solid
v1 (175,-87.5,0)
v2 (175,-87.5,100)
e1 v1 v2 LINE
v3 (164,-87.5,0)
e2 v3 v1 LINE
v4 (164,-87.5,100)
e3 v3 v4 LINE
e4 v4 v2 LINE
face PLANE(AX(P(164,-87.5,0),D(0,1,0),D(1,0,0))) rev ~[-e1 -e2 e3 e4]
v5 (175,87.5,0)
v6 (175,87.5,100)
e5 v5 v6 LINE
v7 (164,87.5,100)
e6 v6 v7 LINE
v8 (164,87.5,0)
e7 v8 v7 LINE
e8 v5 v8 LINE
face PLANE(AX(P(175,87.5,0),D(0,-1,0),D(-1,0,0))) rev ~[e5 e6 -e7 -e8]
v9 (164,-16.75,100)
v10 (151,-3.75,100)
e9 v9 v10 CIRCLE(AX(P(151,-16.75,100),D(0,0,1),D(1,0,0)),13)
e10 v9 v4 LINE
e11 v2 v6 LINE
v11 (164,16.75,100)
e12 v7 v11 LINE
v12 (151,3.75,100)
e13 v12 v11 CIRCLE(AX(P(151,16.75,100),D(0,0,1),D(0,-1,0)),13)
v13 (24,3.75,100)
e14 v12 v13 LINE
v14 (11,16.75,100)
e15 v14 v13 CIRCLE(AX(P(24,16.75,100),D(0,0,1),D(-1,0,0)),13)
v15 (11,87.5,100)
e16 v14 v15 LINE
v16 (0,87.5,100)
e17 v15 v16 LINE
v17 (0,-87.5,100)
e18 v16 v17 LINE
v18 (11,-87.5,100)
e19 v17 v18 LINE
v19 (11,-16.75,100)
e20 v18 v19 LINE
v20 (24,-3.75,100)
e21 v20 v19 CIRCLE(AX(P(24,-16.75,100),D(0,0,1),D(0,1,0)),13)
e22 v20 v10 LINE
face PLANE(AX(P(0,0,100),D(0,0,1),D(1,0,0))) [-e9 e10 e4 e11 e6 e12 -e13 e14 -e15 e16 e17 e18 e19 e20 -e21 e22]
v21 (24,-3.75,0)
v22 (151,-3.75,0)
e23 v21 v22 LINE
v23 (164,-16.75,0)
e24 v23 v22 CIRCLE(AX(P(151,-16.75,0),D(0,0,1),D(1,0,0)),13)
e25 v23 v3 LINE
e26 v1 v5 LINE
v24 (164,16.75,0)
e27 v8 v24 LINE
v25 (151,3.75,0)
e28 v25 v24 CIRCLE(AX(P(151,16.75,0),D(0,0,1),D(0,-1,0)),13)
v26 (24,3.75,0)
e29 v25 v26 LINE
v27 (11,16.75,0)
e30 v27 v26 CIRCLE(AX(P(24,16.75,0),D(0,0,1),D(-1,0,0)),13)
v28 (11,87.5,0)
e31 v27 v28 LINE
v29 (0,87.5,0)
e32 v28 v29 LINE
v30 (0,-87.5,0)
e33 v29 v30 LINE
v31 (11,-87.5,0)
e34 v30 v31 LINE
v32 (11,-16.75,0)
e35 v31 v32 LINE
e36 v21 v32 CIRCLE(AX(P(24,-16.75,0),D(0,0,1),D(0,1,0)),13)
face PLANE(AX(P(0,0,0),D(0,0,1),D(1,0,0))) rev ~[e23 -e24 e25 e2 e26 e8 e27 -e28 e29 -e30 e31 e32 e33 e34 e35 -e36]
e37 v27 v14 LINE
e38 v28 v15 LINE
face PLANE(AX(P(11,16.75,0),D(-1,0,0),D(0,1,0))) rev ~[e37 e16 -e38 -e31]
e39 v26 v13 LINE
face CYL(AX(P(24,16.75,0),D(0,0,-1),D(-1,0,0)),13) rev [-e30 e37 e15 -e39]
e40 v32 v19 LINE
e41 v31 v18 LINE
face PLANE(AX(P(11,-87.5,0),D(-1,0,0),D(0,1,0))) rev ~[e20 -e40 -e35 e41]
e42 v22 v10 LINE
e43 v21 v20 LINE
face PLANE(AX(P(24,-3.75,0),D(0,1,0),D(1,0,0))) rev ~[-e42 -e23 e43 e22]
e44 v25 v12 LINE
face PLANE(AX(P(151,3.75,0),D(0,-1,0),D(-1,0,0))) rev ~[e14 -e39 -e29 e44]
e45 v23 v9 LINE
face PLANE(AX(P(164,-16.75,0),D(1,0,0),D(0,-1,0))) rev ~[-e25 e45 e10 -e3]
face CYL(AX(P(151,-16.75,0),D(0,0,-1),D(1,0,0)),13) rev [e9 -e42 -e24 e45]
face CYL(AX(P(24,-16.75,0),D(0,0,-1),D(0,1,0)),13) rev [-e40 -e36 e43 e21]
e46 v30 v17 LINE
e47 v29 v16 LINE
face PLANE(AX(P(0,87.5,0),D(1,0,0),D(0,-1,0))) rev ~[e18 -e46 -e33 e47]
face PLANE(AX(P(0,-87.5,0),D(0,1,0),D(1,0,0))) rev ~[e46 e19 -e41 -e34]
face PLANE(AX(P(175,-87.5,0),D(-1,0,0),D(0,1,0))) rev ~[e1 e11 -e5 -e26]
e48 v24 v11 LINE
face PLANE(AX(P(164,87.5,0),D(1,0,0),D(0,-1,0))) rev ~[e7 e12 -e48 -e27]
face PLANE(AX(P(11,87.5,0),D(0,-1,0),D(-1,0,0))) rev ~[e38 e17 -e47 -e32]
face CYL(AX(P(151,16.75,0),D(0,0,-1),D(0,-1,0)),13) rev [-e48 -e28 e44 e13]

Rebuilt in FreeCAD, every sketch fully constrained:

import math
import FreeCAD as App
import Part
import Sketcher

doc = App.newDocument("Part")
body = doc.addObject("PartDesign::Body", "Body")

# Sketch on XY plane
sketch1 = body.newObject("Sketcher::SketchObject", "Sketch")
sketch1.AttachmentSupport = (doc.getObject("XY_Plane"), [""])
sketch1.MapMode = "FlatFace"
sketch1.addGeometry([
    Part.LineSegment(App.Vector(11, 87.5, 0), App.Vector(0, 87.5, 0)),  # 0
    Part.LineSegment(App.Vector(0, 87.5, 0), App.Vector(0, -87.5, 0)),  # 1
    Part.LineSegment(App.Vector(0, -87.5, 0), App.Vector(11, -87.5, 0)),  # 2
    Part.LineSegment(App.Vector(11, -87.5, 0), App.Vector(11, -16.75, 0)),  # 3
    Part.ArcOfCircle(Part.Circle(App.Vector(24, -16.75, 0), App.Vector(0, 0, 1), 13), math.radians(90), math.radians(180)),  # 4
    Part.LineSegment(App.Vector(24, -3.75, 0), App.Vector(151, -3.75, 0)),  # 5
    Part.ArcOfCircle(Part.Circle(App.Vector(151, -16.75, 0), App.Vector(0, 0, 1), 13), math.radians(0), math.radians(90)),  # 6
    Part.LineSegment(App.Vector(164, -16.75, 0), App.Vector(164, -87.5, 0)),  # 7
    Part.LineSegment(App.Vector(164, -87.5, 0), App.Vector(175, -87.5, 0)),  # 8
    Part.LineSegment(App.Vector(175, -87.5, 0), App.Vector(175, 87.5, 0)),  # 9
    Part.LineSegment(App.Vector(175, 87.5, 0), App.Vector(164, 87.5, 0)),  # 10
    Part.LineSegment(App.Vector(164, 87.5, 0), App.Vector(164, 16.75, 0)),  # 11
    Part.ArcOfCircle(Part.Circle(App.Vector(151, 16.75, 0), App.Vector(0, 0, 1), 13), math.radians(-90), math.radians(0)),  # 12
    Part.LineSegment(App.Vector(151, 3.75, 0), App.Vector(24, 3.75, 0)),  # 13
    Part.ArcOfCircle(Part.Circle(App.Vector(24, 16.75, 0), App.Vector(0, 0, 1), 13), math.radians(180), math.radians(270)),  # 14
    Part.LineSegment(App.Vector(11, 16.75, 0), App.Vector(11, 87.5, 0)),  # 15
], False)
sketch1.addConstraint([
    Sketcher.Constraint("Coincident", 0, 2, 1, 1),
    Sketcher.Constraint("Coincident", 1, 2, 2, 1),
    Sketcher.Constraint("Coincident", 2, 2, 3, 1),
    Sketcher.Constraint("Tangent", 3, 2, 4, 2),
    Sketcher.Constraint("Tangent", 4, 1, 5, 1),
    Sketcher.Constraint("Tangent", 5, 2, 6, 2),
    Sketcher.Constraint("Tangent", 6, 1, 7, 1),
    Sketcher.Constraint("Coincident", 7, 2, 8, 1),
    Sketcher.Constraint("Coincident", 8, 2, 9, 1),
    Sketcher.Constraint("Coincident", 9, 2, 10, 1),
    Sketcher.Constraint("Coincident", 10, 2, 11, 1),
    Sketcher.Constraint("Tangent", 11, 2, 12, 2),
    Sketcher.Constraint("Tangent", 12, 1, 13, 1),
    Sketcher.Constraint("Tangent", 13, 2, 14, 2),
    Sketcher.Constraint("Tangent", 14, 1, 15, 1),
    Sketcher.Constraint("Coincident", 15, 2, 0, 1),
    Sketcher.Constraint("Horizontal", 0),
    Sketcher.Constraint("Vertical", 1),
    Sketcher.Constraint("Horizontal", 2),
    Sketcher.Constraint("Vertical", 3),
    Sketcher.Constraint("Horizontal", 5),
    Sketcher.Constraint("Vertical", 7),
    Sketcher.Constraint("Horizontal", 8),
    Sketcher.Constraint("Vertical", 9),
    Sketcher.Constraint("Horizontal", 10),
    Sketcher.Constraint("Vertical", 11),
    Sketcher.Constraint("Horizontal", 13),
    Sketcher.Constraint("Vertical", 15),
    Sketcher.Constraint("Equal", 4, 6),
    Sketcher.Constraint("Equal", 6, 12),
    Sketcher.Constraint("Equal", 12, 14),
    Sketcher.Constraint("Symmetric", 0, 2, 1, 2, -1, 1),
    Sketcher.Constraint("Symmetric", 6, 3, 12, 3, -1),
    Sketcher.Constraint("Horizontal", 2, 2, 7, 2),
    Sketcher.Constraint("Horizontal", 0, 2, 9, 2),
    Sketcher.Constraint("Vertical", 4, 3, 14, 3),
    Sketcher.Constraint("Equal", 2, 8),
    Sketcher.Constraint("Radius", 4, 13.0),
    Sketcher.Constraint("DistanceX", 0, 2, 0, 1, 11.0),
    Sketcher.Constraint("DistanceX", 5, 1, 5, 2, 127.0),
    Sketcher.Constraint("DistanceY", 1, 2, 1, 1, 175.0),
    Sketcher.Constraint("DistanceY", 3, 1, 3, 2, 70.75),
])
pad1 = body.newObject("PartDesign::Pad", "Pad")
pad1.Profile = sketch1
pad1.Length = 100

doc.recompute()
